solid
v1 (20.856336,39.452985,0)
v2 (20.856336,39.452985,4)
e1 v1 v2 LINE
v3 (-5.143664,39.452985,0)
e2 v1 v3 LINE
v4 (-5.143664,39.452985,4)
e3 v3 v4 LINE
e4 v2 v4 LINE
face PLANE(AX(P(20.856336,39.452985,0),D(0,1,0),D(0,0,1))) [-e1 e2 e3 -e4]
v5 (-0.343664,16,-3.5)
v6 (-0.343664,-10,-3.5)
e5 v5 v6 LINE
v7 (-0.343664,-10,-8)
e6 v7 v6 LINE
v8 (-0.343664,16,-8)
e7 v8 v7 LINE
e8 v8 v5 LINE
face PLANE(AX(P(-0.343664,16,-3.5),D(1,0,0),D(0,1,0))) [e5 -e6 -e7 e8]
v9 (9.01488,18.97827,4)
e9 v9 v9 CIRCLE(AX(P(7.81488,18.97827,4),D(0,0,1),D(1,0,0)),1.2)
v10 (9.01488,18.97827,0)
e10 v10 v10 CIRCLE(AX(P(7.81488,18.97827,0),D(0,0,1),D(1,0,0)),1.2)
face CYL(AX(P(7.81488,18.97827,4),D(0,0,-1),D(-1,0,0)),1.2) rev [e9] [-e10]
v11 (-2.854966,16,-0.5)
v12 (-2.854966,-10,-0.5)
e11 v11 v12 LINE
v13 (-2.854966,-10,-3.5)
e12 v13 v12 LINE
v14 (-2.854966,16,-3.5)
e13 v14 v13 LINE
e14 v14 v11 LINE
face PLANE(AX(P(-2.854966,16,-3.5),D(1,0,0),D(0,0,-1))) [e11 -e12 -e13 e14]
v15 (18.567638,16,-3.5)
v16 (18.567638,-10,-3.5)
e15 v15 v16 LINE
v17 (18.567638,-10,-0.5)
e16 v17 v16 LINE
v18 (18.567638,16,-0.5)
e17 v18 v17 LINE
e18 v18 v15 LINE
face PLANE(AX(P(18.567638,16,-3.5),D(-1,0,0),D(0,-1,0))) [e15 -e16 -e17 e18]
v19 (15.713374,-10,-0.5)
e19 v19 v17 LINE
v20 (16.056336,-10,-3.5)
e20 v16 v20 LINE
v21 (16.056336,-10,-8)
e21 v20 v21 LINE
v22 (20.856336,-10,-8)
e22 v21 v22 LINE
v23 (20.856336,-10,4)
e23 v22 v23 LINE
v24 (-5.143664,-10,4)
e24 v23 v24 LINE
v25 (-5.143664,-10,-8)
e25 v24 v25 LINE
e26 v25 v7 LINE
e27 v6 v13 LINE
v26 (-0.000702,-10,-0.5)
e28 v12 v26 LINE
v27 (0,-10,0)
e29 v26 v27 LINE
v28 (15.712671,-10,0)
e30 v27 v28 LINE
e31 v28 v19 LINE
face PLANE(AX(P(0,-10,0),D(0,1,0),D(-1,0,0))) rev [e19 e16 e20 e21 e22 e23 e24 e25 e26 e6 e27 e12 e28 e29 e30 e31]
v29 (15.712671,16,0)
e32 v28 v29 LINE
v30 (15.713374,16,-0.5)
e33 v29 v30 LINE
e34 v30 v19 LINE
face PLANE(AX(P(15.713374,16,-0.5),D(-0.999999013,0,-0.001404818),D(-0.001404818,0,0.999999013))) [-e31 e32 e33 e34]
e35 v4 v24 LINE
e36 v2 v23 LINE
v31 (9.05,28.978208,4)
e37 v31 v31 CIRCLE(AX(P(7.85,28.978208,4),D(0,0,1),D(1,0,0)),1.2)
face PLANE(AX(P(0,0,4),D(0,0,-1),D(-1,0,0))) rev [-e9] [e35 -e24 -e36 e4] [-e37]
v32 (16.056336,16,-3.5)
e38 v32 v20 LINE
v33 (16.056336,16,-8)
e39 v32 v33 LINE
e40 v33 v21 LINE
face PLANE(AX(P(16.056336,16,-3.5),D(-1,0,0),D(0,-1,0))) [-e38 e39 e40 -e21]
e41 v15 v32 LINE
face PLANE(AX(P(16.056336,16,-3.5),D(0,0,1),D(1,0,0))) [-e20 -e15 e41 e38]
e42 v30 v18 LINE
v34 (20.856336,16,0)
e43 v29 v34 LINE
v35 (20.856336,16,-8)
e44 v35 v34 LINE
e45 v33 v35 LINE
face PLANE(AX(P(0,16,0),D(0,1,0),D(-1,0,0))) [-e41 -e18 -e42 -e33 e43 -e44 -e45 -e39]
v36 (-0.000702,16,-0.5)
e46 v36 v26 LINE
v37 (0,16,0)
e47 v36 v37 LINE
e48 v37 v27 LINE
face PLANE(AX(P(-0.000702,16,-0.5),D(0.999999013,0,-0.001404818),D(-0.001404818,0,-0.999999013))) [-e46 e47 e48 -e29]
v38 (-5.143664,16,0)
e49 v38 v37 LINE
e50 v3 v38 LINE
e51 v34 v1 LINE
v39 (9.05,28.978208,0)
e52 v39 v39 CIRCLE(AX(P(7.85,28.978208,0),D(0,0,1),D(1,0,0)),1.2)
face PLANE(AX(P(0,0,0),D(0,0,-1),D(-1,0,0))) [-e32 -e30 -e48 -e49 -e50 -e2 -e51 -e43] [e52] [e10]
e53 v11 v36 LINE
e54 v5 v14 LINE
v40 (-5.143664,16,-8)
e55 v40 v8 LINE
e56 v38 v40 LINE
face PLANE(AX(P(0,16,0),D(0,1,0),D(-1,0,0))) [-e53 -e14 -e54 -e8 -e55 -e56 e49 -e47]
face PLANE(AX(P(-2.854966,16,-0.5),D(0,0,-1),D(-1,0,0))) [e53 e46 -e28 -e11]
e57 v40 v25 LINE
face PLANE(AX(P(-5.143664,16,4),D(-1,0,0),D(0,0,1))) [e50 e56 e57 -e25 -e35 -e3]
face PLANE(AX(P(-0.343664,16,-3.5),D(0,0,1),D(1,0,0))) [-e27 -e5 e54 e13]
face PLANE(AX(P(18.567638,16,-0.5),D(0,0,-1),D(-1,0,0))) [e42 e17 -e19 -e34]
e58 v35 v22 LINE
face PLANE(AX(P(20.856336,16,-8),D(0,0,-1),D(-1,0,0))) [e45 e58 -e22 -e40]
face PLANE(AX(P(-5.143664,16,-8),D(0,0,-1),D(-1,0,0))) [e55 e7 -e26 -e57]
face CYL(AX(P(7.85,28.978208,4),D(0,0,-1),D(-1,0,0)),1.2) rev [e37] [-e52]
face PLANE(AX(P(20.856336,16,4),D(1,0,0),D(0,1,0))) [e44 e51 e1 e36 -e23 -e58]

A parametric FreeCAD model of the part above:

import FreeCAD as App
import Part
import Sketcher

V = App.Vector


def add_polygon(sketch, points):
    """Adds a closed chain of lines whose ends are joined by coincident constraints."""
    first, n = sketch.GeometryCount, len(points)
    for a, b in zip(points, points[1:] + points[:1]):
        sketch.addGeometry(Part.LineSegment(App.Vector(*a, 0), App.Vector(*b, 0)), False)
    for i in range(n):
        sketch.addConstraint(Sketcher.Constraint("Coincident", first + i, 2, first + (i + 1) % n, 1))

doc = App.newDocument("Part")
params = doc.addObject("Spreadsheet::Sheet", "Params")
for row, (alias, value) in enumerate([
    ("sketch1_diameter", "2.4 mm"),
    ("pad1_length", "4 mm"),
    ("sketch2_width", "26 mm"),
    ("sketch2_height", "12 mm"),
    ("sketch2_height2", "3 mm"),
    ("sketch2_width2", "4.8 mm"),
    ("sketch2_height3", "4.5 mm"),
    ("pad2_length", "10 mm"),
    ("pad2_length2", "16 mm"),
    ("sketch3_width", "26 mm"),
    ("pad3_length", "4 mm"),
], start=1):
    params.set(f"A{row}", alias)
    params.set(f"B{row}", "=" + value)
    params.setAlias(f"B{row}", alias)

body = doc.addObject("PartDesign::Body", "Body")

sketch1 = body.newObject("Sketcher::SketchObject", "Sketch")
sketch1.AttachmentSupport = (doc.getObject("XY_Plane"), [""])
sketch1.MapMode = "FlatFace"
add_polygon(sketch1, [(0, 32.6), (0, 0), (15.7, 0), (15.7, 32.6)])
sketch1.addGeometry(Part.Circle(V(7.8, 19, 0), V(0, 0, 1), 1.2), False)
sketch1.addGeometry(Part.Circle(V(7.8, 29, 0), V(0, 0, 1), 1.2), False)
sketch1.addConstraint([
    Sketcher.Constraint("Vertical", 0),
    Sketcher.Constraint("Horizontal", 1),
    Sketcher.Constraint("Vertical", 2),
    Sketcher.Constraint("Horizontal", 3),
    Sketcher.Constraint("Coincident", 0, 2, -1, 1),
    Sketcher.Constraint("Equal", 4, 5),
    Sketcher.Constraint("Diameter", 4, 2.4),
    Sketcher.Constraint("DistanceX", -1, 1, 5, 3, 7.85),
    Sketcher.Constraint("DistanceX", 1, 1, 1, 2, 15.712671),
    Sketcher.Constraint("DistanceY", 0, 2, 0, 1, 32.572408),
    Sketcher.Constraint("DistanceY", 5, 3, 2, 2, 3.5942),
    Sketcher.Constraint("DistanceX", -1, 1, 4, 3, 7.81488),
    Sketcher.Constraint("DistanceY", -1, 1, 4, 3, 18.97827),
])
sketch1.setExpression("Constraints[10]", "Params.sketch1_diameter")
pad1 = body.newObject("PartDesign::Pad", "Pad")
pad1.Profile = sketch1
pad1.setExpression("Length", "Params.pad1_length")

sketch2 = body.newObject("Sketcher::SketchObject", "Sketch001")
sketch2.AttachmentSupport = (doc.getObject("XZ_Plane"), [""])
sketch2.MapMode = "FlatFace"
add_polygon(sketch2, [(20.9, 4), (-5.1, 4), (-5.1, -8), (-0.3, -8), (-0.3, -3.5), (-2.9, -3.5), (-2.9, -0.5), (0, -0.5), (0, 0), (15.7, 0), (15.7, -0.5), (18.6, -0.5), (18.6, -3.5), (16.1, -3.5), (16.1, -8), (20.9, -8)])
sketch2.addConstraint([
    Sketcher.Constraint("Horizontal", 0),
    Sketcher.Constraint("Vertical", 1),
    Sketcher.Constraint("Horizontal", 2),
    Sketcher.Constraint("Vertical", 3),
    Sketcher.Constraint("Horizontal", 4),
    Sketcher.Constraint("Vertical", 5),
    Sketcher.Constraint("Horizontal", 6),
    Sketcher.Constraint("Horizontal", 8),
    Sketcher.Constraint("Horizontal", 10),
    Sketcher.Constraint("Vertical", 11),
    Sketcher.Constraint("Horizontal", 12),
    Sketcher.Constraint("Vertical", 13),
    Sketcher.Constraint("Horizontal", 14),
    Sketcher.Constraint("Vertical", 15),
    Sketcher.Constraint("Coincident", 7, 2, -1, 1),
    Sketcher.Constraint("Horizontal", 6, 2, 9, 2),
    Sketcher.Constraint("Horizontal", 4, 2, 11, 2),
    Sketcher.Constraint("Horizontal", 2, 2, 13, 2),
    Sketcher.Constraint("Equal", 6, 10),
    Sketcher.Constraint("Equal", 4, 12),
    Sketcher.Constraint("Equal", 2, 14),
    Sketcher.Constraint("DistanceX", 0, 2, 0, 1, 26.0),
    Sketcher.Constraint("DistanceY", 1, 2, 1, 1, 12.0),
    Sketcher.Constraint("DistanceY", 5, 1, 5, 2, 3.0),
    Sketcher.Constraint("DistanceX", 2, 1, 2, 2, 4.8),
    Sketcher.Constraint("DistanceY", 3, 1, 3, 2, 4.5),
    Sketcher.Constraint("DistanceY", -1, 1, 0, 2, 4.0),
    Sketcher.Constraint("DistanceX", 4, 2, 4, 1, 2.511302),
    Sketcher.Constraint("DistanceX", 8, 1, 8, 2, 15.712671),
    Sketcher.Constraint("DistanceX", 6, 1, 6, 2, 2.854264),
    Sketcher.Constraint("DistanceX", 0, 2, -1, 1, 5.143664),
])
sketch2.setExpression("Constraints[37]", "Params.sketch2_width")
sketch2.setExpression("Constraints[38]", "Params.sketch2_height")
sketch2.setExpression("Constraints[39]", "Params.sketch2_height2")
sketch2.setExpression("Constraints[40]", "Params.sketch2_width2")
sketch2.setExpression("Constraints[41]", "Params.sketch2_height3")
pad2 = body.newObject("PartDesign::Pad", "Pad001")
pad2.Profile = sketch2
pad2.Type = "TwoLengths"
pad2.setExpression("Length", "Params.pad2_length")
pad2.setExpression("Length2", "Params.pad2_length2")

sketch3 = body.newObject("Sketcher::SketchObject", "Sketch002")
sketch3.AttachmentSupport = (doc.getObject("XY_Plane"), [""])
sketch3.MapMode = "FlatFace"
sketch3.AttachmentOffset = App.Placement(V(0, 0, 4), App.Rotation())
add_polygon(sketch3, [(-5, 16), (2, 16), (2, 31), (14, 31), (14, 16), (21, 16), (21, 39), (-5, 39)])
sketch3.addConstraint([
    Sketcher.Constraint("Horizontal", 0),
    Sketcher.Constraint("Vertical", 1),
    Sketcher.Constraint("Horizontal", 2),
    Sketcher.Constraint("Vertical", 3),
    Sketcher.Constraint("Horizontal", 4),
    Sketcher.Constraint("Vertical", 5),
    Sketcher.Constraint("Horizontal", 6),
    Sketcher.Constraint("Vertical", 7),
    Sketcher.Constraint("Horizontal", 0, 2, 3, 2),
    Sketcher.Constraint("DistanceX", 6, 2, 6, 1, 26.0),
    Sketcher.Constraint("DistanceY", -1, 1, 0, 2, 16.0),
    Sketcher.Constraint("DistanceY", 1, 1, 1, 2, 15.446299),
    Sketcher.Constraint("DistanceX", 2, 1, 2, 2, 12.792292),
    Sketcher.Constraint("DistanceX", 4, 1, 4, 2, 6.511911),
    Sketcher.Constraint("DistanceY", 5, 1, 5, 2, 23.452985),
    Sketcher.Constraint("DistanceX", -1, 1, 0, 2, 1.552133),
])
sketch3.setExpression("Constraints[17]", "Params.sketch3_width")
pad3 = body.newObject("PartDesign::Pad", "Pad002")
pad3.Profile = sketch3
pad3.setExpression("Length", "Params.pad3_length")
pad3.Reversed = True

doc.recompute()
